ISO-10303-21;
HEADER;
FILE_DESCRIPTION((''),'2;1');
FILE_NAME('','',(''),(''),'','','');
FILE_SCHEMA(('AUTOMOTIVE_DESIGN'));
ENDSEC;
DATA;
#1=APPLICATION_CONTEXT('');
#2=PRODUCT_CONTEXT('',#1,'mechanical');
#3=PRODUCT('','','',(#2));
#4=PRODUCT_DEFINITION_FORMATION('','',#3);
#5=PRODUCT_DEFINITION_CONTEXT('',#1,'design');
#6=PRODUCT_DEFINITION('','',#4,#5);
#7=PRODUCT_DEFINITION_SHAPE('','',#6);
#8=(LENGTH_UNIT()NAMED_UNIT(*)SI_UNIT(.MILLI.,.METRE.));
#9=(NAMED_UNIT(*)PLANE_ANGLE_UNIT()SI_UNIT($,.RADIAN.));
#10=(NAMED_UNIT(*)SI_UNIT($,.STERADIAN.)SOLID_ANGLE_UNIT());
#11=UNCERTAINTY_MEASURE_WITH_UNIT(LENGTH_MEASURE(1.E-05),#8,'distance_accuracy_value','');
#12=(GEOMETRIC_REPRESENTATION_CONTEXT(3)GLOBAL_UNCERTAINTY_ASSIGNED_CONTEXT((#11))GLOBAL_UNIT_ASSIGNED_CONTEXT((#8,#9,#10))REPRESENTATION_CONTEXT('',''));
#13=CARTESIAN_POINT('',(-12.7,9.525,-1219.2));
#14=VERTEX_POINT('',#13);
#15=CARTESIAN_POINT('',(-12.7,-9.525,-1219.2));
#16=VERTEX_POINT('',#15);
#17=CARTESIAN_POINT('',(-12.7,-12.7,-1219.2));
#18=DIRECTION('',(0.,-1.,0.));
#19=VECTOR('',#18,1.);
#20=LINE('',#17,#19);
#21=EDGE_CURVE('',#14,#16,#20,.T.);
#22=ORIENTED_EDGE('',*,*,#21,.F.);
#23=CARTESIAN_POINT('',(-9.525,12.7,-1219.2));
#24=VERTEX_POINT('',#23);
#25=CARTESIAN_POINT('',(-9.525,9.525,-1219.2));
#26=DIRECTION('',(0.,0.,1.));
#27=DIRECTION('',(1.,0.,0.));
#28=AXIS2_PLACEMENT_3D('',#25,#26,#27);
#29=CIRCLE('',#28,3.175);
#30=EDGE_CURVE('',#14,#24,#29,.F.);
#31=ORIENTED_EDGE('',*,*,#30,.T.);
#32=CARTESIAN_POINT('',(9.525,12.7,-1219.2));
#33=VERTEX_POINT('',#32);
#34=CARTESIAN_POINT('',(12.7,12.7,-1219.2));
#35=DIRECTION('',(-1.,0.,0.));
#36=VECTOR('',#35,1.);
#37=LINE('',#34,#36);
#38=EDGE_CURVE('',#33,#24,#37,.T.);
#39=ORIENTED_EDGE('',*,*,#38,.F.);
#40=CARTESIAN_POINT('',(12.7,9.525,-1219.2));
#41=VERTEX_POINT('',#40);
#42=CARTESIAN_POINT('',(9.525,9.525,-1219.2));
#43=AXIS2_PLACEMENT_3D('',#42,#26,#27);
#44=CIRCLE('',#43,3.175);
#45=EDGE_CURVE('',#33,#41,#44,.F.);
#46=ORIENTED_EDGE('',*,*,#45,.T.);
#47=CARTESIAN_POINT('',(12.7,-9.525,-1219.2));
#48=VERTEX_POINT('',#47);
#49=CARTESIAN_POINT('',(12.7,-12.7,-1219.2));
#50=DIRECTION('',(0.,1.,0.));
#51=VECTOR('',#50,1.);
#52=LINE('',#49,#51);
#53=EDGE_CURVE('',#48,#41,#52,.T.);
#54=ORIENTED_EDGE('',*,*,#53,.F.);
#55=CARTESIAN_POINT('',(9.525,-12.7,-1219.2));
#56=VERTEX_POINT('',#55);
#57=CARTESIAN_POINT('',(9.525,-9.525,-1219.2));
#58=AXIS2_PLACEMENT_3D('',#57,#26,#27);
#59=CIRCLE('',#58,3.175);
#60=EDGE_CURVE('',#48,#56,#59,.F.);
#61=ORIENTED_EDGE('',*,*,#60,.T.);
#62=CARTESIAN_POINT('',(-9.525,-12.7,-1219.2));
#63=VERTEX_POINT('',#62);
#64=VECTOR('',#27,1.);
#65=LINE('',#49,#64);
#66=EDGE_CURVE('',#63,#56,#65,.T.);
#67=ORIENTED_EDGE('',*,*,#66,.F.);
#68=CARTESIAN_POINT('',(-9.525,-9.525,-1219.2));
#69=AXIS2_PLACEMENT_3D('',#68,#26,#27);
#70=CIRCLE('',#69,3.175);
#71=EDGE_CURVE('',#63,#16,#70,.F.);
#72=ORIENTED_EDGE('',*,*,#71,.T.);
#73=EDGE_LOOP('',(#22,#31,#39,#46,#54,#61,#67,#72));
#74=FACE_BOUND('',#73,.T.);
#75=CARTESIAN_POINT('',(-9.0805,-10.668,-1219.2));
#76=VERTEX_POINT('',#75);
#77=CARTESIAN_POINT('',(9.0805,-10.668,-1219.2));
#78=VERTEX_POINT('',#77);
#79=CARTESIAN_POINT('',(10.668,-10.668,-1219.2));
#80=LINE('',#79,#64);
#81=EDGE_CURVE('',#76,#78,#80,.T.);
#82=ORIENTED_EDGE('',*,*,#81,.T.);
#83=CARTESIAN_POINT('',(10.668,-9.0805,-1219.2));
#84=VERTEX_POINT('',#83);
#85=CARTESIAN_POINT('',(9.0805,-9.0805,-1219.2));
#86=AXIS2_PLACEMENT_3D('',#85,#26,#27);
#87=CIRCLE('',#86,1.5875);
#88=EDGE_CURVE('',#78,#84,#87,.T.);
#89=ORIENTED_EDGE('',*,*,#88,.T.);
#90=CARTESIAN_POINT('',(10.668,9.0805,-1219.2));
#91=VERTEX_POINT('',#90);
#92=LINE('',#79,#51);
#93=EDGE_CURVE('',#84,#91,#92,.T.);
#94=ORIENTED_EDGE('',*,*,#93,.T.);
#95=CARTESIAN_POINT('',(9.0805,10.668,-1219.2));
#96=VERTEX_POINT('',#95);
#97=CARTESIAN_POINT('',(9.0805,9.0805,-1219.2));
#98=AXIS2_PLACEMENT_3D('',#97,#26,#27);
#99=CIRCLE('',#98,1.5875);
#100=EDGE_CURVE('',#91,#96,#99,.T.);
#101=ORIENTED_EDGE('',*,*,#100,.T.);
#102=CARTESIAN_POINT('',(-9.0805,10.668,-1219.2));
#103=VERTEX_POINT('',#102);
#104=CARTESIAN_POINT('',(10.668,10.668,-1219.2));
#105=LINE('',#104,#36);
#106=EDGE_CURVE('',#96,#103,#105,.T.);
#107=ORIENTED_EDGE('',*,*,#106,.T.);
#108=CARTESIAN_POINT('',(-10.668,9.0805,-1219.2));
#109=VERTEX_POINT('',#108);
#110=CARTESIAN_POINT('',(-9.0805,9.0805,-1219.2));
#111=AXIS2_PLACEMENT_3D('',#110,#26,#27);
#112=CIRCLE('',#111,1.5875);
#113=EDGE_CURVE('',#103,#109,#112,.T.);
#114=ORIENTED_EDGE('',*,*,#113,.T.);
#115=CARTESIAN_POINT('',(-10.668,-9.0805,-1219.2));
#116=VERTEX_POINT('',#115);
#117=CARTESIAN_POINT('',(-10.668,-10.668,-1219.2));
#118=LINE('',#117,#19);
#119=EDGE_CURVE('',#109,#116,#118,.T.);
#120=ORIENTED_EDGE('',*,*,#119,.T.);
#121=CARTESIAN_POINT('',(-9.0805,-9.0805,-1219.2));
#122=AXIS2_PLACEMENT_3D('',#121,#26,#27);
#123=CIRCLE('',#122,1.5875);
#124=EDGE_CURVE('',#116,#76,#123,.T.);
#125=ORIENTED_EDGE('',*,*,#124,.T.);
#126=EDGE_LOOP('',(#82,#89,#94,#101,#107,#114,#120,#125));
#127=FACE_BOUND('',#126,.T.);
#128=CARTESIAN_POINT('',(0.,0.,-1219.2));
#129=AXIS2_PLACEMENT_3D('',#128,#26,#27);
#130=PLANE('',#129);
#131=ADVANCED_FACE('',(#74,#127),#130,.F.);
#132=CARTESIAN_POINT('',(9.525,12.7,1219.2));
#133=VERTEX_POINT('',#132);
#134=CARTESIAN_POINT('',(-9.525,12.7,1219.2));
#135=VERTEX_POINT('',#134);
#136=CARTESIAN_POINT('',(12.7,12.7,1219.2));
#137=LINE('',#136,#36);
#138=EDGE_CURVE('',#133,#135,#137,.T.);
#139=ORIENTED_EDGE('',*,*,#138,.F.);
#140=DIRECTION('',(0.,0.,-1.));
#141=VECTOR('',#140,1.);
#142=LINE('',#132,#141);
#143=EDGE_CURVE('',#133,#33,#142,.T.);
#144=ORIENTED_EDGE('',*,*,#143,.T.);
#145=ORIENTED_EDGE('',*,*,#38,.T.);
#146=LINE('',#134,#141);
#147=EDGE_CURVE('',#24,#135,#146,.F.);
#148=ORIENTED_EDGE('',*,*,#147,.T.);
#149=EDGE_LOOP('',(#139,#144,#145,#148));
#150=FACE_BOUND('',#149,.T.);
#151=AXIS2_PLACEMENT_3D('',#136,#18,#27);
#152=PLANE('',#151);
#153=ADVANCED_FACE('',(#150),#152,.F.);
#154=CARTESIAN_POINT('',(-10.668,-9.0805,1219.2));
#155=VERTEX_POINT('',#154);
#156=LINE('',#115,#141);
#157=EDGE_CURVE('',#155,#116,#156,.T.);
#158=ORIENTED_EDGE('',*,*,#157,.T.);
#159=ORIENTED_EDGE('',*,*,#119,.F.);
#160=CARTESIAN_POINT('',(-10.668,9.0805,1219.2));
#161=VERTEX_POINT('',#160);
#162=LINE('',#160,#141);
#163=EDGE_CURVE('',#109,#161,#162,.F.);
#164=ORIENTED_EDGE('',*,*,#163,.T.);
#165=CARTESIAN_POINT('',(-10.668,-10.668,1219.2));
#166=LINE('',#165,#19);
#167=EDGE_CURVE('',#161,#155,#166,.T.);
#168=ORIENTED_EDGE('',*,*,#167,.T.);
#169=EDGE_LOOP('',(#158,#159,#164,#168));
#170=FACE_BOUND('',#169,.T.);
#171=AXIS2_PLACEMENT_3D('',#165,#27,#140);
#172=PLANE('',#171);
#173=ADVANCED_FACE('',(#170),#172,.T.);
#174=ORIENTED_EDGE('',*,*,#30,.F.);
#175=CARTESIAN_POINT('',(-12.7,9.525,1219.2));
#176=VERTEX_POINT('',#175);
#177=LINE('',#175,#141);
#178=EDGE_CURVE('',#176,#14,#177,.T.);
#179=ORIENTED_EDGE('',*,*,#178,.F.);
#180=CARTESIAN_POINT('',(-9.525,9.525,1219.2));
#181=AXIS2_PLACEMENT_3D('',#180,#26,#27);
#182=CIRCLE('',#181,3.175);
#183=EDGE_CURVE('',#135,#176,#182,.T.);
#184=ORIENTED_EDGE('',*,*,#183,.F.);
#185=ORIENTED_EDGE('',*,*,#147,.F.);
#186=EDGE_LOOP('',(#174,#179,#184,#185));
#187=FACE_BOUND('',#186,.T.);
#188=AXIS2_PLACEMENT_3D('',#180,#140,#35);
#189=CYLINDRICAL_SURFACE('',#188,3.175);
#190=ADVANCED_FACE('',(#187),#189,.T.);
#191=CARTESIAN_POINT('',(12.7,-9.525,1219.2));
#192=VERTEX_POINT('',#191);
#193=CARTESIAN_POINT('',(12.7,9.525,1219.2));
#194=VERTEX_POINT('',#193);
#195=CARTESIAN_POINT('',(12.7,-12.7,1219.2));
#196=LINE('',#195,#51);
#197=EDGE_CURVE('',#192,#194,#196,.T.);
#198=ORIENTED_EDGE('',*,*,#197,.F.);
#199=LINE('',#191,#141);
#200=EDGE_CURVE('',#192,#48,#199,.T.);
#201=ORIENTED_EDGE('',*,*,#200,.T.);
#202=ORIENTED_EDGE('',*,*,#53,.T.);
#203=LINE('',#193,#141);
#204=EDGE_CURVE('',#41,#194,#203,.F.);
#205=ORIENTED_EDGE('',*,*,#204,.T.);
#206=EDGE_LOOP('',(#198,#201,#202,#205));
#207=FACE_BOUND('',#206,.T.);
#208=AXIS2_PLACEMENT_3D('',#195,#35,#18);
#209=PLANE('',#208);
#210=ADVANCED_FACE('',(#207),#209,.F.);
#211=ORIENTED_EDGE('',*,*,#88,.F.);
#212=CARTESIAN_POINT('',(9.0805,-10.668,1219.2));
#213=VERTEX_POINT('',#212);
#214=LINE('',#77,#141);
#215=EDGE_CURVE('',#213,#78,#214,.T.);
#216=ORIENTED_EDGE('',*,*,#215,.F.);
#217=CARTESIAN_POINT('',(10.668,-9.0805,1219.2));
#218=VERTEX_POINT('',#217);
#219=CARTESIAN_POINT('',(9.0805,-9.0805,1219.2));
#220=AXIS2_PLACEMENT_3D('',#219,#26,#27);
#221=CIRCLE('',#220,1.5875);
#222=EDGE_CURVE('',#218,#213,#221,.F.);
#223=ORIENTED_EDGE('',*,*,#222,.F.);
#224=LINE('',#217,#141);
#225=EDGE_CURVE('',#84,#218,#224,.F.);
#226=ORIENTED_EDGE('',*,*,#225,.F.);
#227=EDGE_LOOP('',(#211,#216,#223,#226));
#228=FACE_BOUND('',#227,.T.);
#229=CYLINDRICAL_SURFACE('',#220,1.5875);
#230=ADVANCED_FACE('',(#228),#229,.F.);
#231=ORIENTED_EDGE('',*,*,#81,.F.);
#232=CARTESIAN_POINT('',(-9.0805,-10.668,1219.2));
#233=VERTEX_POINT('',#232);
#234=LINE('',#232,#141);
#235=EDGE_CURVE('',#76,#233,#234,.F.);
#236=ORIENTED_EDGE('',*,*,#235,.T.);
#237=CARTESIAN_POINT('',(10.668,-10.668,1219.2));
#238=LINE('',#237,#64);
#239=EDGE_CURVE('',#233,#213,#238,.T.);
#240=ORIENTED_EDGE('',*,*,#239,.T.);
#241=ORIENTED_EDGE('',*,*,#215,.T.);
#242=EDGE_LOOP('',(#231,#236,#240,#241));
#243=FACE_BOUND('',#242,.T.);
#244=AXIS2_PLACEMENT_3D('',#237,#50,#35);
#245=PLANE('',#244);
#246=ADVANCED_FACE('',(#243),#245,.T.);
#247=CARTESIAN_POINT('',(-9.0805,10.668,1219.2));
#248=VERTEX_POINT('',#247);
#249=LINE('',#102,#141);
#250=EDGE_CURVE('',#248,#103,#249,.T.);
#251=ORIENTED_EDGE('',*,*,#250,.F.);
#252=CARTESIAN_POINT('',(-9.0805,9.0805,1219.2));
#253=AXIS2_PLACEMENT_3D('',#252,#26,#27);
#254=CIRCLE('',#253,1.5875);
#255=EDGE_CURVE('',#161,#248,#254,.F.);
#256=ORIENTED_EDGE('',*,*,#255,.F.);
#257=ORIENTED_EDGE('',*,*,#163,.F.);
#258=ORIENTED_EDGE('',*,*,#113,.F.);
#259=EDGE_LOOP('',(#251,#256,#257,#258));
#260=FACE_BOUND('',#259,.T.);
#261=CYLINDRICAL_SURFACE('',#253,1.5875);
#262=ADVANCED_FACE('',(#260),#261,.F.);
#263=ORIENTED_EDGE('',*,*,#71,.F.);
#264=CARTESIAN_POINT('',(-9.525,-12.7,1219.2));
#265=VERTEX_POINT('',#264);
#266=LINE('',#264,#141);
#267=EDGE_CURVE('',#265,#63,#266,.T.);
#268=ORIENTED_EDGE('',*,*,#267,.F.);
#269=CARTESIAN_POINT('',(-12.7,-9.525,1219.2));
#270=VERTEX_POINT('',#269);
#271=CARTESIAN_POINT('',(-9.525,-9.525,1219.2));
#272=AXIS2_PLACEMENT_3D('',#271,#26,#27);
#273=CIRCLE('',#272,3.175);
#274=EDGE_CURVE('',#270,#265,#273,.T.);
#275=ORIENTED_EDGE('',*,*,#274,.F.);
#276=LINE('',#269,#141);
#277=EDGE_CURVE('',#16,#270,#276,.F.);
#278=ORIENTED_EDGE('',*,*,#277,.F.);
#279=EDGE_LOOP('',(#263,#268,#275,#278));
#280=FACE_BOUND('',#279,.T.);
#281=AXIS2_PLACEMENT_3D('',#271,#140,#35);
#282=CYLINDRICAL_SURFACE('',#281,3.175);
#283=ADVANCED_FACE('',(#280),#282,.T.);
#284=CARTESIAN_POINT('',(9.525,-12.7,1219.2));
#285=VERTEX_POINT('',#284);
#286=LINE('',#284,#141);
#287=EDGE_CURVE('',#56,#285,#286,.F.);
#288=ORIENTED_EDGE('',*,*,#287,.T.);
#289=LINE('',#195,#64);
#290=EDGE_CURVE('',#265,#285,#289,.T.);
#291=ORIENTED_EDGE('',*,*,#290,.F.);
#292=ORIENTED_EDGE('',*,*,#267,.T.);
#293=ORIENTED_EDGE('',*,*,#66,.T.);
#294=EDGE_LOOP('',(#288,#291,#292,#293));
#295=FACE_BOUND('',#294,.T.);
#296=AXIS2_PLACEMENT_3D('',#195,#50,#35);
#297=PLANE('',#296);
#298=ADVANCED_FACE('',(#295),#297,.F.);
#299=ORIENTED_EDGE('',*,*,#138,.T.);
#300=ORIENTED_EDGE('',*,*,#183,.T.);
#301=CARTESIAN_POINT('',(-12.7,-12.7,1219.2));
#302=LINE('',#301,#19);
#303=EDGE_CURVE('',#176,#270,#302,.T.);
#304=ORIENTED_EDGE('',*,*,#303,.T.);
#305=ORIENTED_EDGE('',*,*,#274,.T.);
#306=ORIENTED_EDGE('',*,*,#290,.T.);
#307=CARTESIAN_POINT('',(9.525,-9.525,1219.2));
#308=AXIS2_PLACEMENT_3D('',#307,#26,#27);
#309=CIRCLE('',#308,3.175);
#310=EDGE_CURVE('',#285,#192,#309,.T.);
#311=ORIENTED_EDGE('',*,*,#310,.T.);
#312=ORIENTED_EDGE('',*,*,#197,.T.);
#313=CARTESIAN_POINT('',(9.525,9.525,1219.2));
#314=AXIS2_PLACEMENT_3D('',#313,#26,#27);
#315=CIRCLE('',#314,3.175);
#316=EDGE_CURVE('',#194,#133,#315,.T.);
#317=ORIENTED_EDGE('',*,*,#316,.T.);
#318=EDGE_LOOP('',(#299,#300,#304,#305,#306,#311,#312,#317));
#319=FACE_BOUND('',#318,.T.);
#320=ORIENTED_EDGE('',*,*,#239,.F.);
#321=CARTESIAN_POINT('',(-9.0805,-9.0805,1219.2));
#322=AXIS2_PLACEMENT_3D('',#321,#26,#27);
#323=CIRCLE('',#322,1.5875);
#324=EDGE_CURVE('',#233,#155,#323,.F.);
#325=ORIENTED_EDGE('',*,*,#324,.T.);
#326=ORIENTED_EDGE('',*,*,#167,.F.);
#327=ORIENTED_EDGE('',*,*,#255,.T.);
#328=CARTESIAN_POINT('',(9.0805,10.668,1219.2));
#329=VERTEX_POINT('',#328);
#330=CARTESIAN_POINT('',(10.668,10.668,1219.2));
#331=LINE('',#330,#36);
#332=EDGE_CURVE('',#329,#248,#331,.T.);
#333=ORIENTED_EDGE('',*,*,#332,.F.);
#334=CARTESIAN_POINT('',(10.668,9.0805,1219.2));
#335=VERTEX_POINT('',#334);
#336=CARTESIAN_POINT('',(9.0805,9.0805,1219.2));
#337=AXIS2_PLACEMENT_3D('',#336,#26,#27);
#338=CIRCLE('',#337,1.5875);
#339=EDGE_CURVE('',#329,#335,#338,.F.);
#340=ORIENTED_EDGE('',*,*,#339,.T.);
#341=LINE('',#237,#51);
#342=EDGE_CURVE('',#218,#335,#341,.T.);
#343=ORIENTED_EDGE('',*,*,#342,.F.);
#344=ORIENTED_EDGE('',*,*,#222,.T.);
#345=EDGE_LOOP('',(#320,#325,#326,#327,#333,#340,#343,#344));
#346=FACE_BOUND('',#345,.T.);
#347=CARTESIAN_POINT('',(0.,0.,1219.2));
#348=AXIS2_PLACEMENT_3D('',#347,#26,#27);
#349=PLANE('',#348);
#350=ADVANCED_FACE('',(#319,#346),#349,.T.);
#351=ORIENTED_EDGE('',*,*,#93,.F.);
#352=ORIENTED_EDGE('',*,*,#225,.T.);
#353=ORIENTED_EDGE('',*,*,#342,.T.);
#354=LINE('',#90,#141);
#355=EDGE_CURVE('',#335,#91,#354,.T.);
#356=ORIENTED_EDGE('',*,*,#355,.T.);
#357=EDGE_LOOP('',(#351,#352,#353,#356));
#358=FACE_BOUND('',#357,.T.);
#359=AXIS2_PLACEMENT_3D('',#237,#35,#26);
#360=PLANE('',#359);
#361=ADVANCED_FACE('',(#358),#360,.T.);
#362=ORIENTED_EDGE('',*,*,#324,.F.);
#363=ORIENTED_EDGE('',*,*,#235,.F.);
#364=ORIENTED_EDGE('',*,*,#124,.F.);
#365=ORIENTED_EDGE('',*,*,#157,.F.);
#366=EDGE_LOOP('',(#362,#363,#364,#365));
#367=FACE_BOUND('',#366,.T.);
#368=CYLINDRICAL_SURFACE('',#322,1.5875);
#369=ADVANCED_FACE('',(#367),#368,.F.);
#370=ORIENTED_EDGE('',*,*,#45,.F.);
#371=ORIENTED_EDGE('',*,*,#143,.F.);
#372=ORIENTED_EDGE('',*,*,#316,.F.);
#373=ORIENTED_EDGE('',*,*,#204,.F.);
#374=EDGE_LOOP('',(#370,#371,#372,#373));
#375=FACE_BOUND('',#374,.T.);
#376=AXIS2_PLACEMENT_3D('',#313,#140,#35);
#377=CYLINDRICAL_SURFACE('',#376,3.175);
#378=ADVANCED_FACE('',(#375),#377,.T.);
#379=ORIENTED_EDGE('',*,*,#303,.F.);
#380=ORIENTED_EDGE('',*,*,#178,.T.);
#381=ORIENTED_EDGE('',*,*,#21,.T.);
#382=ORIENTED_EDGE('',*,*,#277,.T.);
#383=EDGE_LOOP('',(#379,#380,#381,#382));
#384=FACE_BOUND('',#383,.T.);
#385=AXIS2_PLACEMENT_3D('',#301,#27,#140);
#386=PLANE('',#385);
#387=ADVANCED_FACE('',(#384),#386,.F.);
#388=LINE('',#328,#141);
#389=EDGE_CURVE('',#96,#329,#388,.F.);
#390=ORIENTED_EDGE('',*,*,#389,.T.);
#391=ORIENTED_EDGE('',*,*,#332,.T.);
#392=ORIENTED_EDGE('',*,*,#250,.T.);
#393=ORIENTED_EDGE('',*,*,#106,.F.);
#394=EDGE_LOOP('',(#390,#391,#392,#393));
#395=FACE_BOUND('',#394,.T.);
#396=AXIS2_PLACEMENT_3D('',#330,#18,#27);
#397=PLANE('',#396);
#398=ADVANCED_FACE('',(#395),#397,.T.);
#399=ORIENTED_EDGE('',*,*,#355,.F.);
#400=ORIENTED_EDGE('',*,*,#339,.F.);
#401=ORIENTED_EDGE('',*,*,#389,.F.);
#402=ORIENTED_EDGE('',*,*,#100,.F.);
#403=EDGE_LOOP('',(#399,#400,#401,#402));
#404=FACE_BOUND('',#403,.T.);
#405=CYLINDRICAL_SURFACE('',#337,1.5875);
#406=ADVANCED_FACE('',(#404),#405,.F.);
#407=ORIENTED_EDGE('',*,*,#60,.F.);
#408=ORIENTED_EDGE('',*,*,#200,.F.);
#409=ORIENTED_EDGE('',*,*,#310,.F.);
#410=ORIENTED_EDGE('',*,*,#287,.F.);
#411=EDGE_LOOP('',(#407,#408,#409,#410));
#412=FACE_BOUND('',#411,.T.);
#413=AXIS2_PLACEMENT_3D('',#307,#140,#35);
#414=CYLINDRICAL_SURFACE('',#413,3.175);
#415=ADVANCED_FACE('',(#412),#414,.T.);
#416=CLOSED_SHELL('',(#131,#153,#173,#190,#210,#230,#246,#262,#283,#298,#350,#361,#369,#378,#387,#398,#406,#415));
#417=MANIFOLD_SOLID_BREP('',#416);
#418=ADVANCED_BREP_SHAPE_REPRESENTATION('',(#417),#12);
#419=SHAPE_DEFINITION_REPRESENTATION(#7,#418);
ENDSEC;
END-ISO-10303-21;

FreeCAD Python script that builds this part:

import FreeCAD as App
import Part
import Sketcher
Q = App.Units.Quantity


def edges_at(feature, points):
    """Names of the edges that pass closest to the given points."""
    edges = feature.Shape.Edges
    near = lambda p: min(range(len(edges)), key=lambda i: edges[i].distToShape(Part.Vertex(*p))[0])
    return sorted({f"Edge{near(p) + 1}" for p in points})


def add_polygon(sketch, points):
    """Adds a closed chain of lines whose ends are joined by coincident constraints."""
    first, n = sketch.GeometryCount, len(points)
    for a, b in zip(points, points[1:] + points[:1]):
        sketch.addGeometry(Part.LineSegment(App.Vector(*a, 0), App.Vector(*b, 0)), False)
    for i in range(n):
        sketch.addConstraint(Sketcher.Constraint("Coincident", first + i, 2, first + (i + 1) % n, 1))

doc = App.newDocument("Part")
body = doc.addObject("PartDesign::Body", "Body")

# Sketch on XY plane
sketch1 = doc.addObject("Sketcher::SketchObject", "Sketch")
body.addObject(sketch1)
sketch1.AttachmentSupport = (doc.XY_Plane, [""])
sketch1.MapMode = "FlatFace"
add_polygon(sketch1, [(-13, 13), (-13, -13), (13, -13), (13, 13)])  # lines 0-3
add_polygon(sketch1, [(11, -11), (-11, -11), (-11, 11), (11, 11)])  # lines 4-7
sketch1.addConstraint([
    Sketcher.Constraint("Vertical", 0),
    Sketcher.Constraint("Horizontal", 1),
    Sketcher.Constraint("Vertical", 2),
    Sketcher.Constraint("Horizontal", 3),
    Sketcher.Constraint("Horizontal", 4),
    Sketcher.Constraint("Vertical", 5),
    Sketcher.Constraint("Horizontal", 6),
    Sketcher.Constraint("Vertical", 7),
    Sketcher.Constraint("Symmetric", 0, 2, 2, 2, -1, 1),
    Sketcher.Constraint("Symmetric", 4, 2, 6, 2, -1, 1),
    Sketcher.Constraint("Equal", 3, 0),
    Sketcher.Constraint("Equal", 6, 5),
    Sketcher.Constraint("DistanceX", 1, 1, 1, 2, Q("1 in")),
    Sketcher.Constraint("DistanceX", 4, 2, 4, 1, Q("0.84 in")),
])
pad1 = doc.addObject("PartDesign::Pad", "Pad")
body.addObject(pad1)
pad1.Profile = sketch1
pad1.Type = "TwoLengths"
pad1.Length = Q("48 in")
pad1.Length2 = Q("48 in")
doc.recompute()

fillet = doc.addObject("PartDesign::Fillet", "Fillet")
body.addObject(fillet)
fillet.Base = (pad1, edges_at(pad1, [
    (12.7, -12.7, 0),
    (-12.7, -12.7, 0),
    (-12.7, 12.7, 0),
    (12.7, 12.7, 0),
]))
fillet.Radius = Q("0.125 in")
doc.recompute()

fillet2 = doc.addObject("PartDesign::Fillet", "Fillet001")
body.addObject(fillet2)
fillet2.Base = (fillet, edges_at(fillet, [
    (10.668, -10.668, 0),
    (10.668, 10.668, 0),
    (-10.668, 10.668, 0),
    (-10.668, -10.668, 0),
]))
fillet2.Radius = Q("0.0625 in")

doc.recompute()
